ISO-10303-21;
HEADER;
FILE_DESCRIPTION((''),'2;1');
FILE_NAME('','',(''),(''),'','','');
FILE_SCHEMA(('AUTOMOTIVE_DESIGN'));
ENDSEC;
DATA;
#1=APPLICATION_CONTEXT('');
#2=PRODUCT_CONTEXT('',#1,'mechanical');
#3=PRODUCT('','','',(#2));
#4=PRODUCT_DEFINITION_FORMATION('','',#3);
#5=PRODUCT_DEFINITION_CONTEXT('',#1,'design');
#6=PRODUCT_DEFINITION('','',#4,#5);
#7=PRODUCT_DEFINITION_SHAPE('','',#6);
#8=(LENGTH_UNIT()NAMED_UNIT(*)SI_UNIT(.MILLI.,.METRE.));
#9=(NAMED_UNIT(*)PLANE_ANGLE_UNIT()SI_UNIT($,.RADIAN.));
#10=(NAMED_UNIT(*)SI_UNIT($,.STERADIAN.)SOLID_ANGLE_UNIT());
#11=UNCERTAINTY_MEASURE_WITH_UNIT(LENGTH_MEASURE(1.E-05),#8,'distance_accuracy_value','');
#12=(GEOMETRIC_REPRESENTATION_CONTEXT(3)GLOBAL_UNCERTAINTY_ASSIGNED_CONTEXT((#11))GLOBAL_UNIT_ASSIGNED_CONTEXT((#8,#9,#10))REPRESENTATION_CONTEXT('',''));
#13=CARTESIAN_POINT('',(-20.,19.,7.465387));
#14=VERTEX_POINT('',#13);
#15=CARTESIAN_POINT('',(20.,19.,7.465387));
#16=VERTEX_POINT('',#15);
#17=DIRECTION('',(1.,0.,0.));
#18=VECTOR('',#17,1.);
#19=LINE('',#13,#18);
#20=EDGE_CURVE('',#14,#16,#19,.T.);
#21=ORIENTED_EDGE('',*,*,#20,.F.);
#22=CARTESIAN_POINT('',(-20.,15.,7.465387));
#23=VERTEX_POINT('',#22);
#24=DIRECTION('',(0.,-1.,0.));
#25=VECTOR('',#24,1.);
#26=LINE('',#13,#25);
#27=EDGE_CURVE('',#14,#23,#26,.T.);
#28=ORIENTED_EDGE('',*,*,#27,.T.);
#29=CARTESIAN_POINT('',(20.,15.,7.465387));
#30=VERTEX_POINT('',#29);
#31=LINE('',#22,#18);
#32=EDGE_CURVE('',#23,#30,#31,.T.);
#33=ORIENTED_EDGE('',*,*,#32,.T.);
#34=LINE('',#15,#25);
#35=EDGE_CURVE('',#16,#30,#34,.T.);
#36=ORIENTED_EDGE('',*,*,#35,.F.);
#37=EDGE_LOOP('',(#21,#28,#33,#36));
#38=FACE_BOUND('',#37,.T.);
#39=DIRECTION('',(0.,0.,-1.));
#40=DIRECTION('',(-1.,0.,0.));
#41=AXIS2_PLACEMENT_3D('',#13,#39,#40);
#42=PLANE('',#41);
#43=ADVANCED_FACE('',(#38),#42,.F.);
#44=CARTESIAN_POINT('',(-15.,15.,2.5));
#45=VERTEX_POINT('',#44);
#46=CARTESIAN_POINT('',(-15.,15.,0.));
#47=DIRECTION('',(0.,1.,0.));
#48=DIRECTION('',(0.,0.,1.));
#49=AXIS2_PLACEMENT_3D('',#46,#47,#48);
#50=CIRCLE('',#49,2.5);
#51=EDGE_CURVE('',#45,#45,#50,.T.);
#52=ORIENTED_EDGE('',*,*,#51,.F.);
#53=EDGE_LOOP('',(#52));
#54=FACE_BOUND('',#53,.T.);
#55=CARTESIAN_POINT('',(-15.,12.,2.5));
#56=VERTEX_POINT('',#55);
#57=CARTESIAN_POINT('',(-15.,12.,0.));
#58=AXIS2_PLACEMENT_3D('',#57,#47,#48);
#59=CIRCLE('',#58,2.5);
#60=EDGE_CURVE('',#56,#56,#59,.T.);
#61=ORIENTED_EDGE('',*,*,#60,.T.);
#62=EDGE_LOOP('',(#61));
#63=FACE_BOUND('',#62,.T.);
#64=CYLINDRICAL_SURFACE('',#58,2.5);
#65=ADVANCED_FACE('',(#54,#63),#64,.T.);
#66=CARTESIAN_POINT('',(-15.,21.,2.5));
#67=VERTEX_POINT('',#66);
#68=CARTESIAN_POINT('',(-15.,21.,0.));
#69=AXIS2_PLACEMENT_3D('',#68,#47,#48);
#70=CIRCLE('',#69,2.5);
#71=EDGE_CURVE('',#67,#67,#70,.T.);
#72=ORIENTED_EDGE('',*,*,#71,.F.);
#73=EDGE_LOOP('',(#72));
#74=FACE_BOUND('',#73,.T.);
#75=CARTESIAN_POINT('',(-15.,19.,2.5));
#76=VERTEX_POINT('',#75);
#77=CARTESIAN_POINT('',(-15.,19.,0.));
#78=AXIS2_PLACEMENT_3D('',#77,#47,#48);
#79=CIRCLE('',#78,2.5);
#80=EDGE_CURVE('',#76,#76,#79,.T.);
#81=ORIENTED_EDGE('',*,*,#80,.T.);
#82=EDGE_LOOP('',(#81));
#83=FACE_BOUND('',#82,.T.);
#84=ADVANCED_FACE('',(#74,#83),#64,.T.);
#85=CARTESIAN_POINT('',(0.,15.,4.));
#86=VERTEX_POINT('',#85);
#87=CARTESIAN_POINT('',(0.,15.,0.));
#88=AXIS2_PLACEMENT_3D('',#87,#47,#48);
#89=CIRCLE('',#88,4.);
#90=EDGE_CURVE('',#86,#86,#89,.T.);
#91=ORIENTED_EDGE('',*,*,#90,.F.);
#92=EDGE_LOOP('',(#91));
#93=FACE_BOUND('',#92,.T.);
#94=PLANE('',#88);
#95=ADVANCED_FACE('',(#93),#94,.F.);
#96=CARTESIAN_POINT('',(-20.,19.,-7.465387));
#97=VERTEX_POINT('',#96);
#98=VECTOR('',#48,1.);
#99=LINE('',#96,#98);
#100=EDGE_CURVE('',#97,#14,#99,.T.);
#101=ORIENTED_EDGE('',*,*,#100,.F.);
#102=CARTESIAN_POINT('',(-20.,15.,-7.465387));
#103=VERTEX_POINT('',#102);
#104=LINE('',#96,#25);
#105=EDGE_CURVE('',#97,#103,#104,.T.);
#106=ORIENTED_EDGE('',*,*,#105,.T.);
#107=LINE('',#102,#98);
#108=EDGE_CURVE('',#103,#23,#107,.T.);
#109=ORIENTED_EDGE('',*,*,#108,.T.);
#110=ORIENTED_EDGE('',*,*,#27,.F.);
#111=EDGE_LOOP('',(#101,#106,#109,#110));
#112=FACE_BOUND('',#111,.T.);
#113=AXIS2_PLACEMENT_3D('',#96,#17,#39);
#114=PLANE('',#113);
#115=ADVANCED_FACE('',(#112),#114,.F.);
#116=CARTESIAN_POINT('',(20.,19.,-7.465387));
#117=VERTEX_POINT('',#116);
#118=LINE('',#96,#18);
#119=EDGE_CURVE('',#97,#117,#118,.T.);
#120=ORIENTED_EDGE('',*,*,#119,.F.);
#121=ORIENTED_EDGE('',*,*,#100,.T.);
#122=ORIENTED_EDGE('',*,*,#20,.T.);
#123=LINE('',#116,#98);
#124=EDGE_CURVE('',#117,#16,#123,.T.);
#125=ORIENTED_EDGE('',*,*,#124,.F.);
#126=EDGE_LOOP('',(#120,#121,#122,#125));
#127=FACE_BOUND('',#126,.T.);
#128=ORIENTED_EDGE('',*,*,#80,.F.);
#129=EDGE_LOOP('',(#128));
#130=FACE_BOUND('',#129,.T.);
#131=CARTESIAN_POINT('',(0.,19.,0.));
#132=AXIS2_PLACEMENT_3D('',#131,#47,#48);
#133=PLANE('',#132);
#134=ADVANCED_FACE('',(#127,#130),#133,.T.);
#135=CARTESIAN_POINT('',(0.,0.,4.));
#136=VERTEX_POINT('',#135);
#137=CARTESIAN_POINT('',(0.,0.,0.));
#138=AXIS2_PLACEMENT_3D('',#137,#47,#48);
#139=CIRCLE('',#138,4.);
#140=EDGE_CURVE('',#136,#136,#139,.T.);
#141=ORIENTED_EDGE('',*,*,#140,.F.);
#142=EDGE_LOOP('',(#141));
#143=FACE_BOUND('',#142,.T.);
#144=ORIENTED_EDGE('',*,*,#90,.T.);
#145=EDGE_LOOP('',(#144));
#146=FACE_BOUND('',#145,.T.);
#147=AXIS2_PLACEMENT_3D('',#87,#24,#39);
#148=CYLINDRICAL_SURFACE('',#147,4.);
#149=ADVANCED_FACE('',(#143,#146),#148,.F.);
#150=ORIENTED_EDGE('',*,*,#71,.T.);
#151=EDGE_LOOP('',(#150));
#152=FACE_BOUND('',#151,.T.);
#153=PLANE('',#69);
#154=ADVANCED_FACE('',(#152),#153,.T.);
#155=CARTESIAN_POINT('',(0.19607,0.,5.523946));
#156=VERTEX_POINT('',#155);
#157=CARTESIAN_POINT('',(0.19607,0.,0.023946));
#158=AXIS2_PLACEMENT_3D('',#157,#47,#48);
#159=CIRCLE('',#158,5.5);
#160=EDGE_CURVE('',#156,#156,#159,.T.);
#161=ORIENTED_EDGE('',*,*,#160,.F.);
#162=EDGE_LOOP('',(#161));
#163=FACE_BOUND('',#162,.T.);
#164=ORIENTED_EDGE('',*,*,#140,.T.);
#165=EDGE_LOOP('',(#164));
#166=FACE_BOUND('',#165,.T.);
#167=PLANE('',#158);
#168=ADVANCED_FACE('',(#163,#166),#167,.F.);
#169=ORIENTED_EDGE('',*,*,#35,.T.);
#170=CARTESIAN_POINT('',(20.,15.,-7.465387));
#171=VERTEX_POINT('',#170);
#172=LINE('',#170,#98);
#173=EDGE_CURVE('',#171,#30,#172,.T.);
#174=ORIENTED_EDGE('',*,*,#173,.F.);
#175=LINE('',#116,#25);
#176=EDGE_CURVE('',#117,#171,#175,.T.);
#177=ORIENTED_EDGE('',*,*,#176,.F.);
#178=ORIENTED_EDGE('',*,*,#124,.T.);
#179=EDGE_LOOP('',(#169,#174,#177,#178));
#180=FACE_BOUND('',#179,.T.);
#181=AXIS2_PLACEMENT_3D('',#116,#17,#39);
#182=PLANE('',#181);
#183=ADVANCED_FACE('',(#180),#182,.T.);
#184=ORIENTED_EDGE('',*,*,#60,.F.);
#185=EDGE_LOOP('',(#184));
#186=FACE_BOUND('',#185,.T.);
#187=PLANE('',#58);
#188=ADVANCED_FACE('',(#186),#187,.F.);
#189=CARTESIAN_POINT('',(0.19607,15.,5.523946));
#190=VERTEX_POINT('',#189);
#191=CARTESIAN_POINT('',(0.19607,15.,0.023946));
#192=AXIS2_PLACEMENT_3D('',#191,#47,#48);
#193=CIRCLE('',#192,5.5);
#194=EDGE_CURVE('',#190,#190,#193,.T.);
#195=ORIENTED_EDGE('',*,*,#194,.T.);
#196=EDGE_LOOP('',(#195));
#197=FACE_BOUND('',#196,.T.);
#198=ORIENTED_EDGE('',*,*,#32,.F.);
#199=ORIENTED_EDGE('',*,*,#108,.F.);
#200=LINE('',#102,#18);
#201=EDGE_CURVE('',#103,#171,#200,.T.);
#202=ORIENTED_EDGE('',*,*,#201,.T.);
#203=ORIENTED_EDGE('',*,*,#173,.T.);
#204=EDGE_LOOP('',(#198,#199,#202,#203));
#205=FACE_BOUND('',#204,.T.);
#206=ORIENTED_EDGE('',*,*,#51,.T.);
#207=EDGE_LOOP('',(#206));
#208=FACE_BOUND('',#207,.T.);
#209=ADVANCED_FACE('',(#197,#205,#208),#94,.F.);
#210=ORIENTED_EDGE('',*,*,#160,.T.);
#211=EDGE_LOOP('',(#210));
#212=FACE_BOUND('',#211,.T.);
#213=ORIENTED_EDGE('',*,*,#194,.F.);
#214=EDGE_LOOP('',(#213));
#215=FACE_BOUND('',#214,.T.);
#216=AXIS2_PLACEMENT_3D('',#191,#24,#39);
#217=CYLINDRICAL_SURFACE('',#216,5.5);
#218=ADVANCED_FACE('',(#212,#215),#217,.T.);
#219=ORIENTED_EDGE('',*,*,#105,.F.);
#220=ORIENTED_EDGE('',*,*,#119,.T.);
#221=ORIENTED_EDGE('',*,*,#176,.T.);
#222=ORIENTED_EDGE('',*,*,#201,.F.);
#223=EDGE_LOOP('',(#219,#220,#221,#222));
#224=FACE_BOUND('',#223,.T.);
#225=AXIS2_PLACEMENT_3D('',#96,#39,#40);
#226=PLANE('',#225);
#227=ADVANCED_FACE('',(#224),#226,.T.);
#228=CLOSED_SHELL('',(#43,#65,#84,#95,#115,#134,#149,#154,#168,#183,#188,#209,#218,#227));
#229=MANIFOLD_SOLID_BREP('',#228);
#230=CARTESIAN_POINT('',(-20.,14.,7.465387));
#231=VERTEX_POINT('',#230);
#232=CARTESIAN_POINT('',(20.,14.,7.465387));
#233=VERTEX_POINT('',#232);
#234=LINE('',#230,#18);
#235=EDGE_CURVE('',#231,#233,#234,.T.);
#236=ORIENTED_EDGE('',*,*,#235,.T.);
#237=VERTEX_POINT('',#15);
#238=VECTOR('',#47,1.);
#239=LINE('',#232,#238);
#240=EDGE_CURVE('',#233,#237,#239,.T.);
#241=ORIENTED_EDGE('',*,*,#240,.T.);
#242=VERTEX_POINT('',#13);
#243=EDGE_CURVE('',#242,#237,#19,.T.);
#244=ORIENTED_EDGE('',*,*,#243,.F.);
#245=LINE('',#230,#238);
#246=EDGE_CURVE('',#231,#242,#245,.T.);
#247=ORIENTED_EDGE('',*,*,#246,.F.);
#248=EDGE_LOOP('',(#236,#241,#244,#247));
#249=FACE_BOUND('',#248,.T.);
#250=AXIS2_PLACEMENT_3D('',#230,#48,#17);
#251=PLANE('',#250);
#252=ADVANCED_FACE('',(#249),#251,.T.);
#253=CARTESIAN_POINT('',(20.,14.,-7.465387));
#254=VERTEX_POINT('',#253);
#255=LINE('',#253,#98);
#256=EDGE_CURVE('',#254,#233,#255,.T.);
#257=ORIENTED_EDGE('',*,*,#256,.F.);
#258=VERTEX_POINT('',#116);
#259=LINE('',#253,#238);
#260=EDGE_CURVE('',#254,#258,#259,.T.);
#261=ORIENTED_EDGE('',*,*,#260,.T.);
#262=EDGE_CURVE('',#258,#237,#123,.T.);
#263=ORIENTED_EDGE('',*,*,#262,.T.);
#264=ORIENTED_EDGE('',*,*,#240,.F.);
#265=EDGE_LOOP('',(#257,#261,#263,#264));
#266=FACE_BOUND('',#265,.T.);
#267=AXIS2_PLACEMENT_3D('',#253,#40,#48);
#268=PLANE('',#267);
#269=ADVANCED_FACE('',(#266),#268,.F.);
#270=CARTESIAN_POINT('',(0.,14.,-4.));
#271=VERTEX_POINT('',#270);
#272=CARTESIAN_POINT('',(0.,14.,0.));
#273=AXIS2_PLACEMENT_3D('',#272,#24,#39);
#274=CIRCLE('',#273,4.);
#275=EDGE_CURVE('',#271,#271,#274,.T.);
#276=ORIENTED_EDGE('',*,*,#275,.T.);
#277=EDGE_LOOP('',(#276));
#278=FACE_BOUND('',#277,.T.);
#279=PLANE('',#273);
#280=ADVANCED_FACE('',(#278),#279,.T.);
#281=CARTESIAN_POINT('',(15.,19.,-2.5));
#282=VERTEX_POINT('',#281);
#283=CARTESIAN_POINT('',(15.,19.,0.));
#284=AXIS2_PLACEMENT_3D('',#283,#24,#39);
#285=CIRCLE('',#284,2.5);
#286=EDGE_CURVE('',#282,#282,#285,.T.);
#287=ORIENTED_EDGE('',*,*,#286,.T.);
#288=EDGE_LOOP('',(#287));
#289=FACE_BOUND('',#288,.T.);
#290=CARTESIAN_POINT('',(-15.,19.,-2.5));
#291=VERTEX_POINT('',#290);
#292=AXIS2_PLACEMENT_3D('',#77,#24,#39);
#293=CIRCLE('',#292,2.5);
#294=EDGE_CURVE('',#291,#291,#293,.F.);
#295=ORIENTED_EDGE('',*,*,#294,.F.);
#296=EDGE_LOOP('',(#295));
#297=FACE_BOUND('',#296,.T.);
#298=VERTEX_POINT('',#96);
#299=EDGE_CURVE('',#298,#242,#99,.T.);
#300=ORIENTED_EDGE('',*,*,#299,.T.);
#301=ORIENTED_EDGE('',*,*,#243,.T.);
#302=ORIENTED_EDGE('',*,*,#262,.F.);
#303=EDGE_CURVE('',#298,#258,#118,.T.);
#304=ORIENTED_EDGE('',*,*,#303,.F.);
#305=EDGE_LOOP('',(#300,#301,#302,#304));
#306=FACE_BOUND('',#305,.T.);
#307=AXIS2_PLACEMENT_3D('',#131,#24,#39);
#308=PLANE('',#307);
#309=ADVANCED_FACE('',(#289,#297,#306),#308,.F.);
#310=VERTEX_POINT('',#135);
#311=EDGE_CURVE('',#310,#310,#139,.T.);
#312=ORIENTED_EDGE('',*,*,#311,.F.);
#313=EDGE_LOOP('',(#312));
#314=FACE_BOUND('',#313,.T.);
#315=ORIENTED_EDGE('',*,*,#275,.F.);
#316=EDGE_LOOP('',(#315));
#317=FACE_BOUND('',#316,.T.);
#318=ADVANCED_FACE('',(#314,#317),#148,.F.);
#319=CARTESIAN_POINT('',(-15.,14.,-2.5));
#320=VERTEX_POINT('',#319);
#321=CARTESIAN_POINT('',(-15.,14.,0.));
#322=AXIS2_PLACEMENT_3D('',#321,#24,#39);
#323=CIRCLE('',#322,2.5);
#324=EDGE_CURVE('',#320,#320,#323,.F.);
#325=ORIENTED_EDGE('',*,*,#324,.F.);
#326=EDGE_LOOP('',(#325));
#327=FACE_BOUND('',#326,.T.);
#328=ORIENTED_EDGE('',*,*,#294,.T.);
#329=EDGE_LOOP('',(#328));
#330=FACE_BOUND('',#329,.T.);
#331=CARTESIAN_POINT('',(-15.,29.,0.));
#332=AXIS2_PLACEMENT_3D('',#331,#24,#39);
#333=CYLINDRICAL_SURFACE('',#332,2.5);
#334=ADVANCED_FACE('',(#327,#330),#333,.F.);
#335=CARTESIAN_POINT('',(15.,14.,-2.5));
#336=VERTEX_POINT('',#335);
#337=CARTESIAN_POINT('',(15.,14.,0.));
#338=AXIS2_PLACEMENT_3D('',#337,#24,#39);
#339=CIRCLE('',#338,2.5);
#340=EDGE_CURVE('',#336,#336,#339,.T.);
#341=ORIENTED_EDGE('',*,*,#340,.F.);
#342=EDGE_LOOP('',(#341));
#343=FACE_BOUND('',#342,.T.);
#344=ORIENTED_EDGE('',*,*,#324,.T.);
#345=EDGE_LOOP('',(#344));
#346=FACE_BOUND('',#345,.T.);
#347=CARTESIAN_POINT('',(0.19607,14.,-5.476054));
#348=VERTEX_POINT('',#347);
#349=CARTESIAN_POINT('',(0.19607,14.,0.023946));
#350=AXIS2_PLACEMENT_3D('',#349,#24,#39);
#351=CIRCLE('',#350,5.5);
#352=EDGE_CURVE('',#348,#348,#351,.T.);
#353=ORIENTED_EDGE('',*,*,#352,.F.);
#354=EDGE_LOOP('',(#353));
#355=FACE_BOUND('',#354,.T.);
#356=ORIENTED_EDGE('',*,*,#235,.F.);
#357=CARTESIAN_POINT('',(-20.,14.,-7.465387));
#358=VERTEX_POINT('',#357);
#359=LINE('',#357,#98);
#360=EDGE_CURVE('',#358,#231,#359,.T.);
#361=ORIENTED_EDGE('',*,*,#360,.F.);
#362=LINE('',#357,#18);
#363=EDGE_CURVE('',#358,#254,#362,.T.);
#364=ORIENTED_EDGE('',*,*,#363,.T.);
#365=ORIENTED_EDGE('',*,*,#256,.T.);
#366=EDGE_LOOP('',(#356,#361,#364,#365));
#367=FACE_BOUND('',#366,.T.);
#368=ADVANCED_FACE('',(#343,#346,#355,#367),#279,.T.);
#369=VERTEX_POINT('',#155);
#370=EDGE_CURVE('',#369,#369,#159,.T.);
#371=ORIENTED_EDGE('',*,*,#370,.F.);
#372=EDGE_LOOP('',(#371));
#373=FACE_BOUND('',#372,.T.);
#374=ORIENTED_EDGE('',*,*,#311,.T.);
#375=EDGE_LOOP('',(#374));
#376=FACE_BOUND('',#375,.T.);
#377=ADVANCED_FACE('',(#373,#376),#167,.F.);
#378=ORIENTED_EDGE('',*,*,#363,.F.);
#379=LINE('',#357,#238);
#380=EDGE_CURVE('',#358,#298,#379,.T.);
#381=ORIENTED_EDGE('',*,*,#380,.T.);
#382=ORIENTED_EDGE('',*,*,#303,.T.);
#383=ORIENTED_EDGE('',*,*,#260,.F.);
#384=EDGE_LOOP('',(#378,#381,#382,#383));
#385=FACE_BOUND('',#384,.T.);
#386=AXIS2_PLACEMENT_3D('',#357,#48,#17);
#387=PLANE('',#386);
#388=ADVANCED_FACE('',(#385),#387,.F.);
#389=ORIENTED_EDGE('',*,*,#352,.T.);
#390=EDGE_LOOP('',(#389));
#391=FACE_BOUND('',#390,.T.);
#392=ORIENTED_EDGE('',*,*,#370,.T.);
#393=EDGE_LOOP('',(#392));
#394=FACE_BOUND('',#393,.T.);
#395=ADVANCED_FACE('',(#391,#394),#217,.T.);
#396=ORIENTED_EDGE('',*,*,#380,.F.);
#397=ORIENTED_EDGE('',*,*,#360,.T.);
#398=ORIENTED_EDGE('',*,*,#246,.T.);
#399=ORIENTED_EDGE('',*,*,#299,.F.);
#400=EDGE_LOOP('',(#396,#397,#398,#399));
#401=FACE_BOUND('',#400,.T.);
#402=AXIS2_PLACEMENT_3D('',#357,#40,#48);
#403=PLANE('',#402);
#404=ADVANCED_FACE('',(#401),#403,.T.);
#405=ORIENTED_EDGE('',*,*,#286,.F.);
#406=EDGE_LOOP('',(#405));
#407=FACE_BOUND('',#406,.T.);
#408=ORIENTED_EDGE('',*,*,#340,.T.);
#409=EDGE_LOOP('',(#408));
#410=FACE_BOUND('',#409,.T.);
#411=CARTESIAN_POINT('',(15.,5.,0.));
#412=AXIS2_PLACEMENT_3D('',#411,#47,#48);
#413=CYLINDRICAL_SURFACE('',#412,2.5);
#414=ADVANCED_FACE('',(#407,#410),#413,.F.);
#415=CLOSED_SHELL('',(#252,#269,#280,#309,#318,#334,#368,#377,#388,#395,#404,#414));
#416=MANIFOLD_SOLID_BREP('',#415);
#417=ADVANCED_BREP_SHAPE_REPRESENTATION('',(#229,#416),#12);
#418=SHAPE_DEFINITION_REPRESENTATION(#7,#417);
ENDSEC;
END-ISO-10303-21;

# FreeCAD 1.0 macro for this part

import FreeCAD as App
import Part
import Sketcher
from FreeCAD import Vector

doc = App.newDocument("Part")
body = doc.addObject("PartDesign::Body", "Body")

# Sketch on XZ plane
sketch1 = body.newObject("Sketcher::SketchObject", "Sketch")
sketch1.AttachmentSupport = (doc.getObject("XZ_Plane"), [""])
sketch1.MapMode = "FlatFace"
sketch1.addGeometry([
    Part.Circle(Vector(0.2, 0, 0), Vector(0, 0, 1), 5.5),
    Part.Circle(Vector(0, 0, 0), Vector(0, 0, 1), 4),
], False)
sketch1.addConstraint([
    Sketcher.Constraint("Coincident", 1, 3, -1, 1),
    Sketcher.Constraint("Diameter", 0, 11.0),
    Sketcher.Constraint("Diameter", 1, 8.0),
    Sketcher.Constraint("DistanceX", -1, 1, 0, 3, 0.19607),
    Sketcher.Constraint("DistanceY", -1, 1, 0, 3, 0.023946),
])
pad1 = body.newObject("PartDesign::Pad", "Pad")
pad1.Profile = sketch1
pad1.Length = 15
pad1.Reversed = True

# Sketch on XZ plane
sketch2 = body.newObject("Sketcher::SketchObject", "Sketch001")
sketch2.AttachmentSupport = (doc.getObject("XZ_Plane"), [""])
sketch2.MapMode = "FlatFace"
sketch2.AttachmentOffset = App.Placement(Vector(0, 0, -15), App.Rotation())
sketch2.addGeometry([
    Part.LineSegment(Vector(-20, -7, 0), Vector(-20, 7, 0)),
    Part.LineSegment(Vector(-20, 7, 0), Vector(20, 7, 0)),
    Part.LineSegment(Vector(20, 7, 0), Vector(20, -7, 0)),
    Part.LineSegment(Vector(20, -7, 0), Vector(-20, -7, 0)),
], False)
sketch2.addConstraint([
    Sketcher.Constraint("Coincident", 0, 2, 1, 1),
    Sketcher.Constraint("Coincident", 1, 2, 2, 1),
    Sketcher.Constraint("Coincident", 2, 2, 3, 1),
    Sketcher.Constraint("Coincident", 3, 2, 0, 1),
    Sketcher.Constraint("Vertical", 0),
    Sketcher.Constraint("Horizontal", 1),
    Sketcher.Constraint("Vertical", 2),
    Sketcher.Constraint("Horizontal", 3),
    Sketcher.Constraint("Symmetric", 0, 2, 2, 2, -1, 1),
    Sketcher.Constraint("DistanceX", 1, 1, 1, 2, 40.0),
    Sketcher.Constraint("DistanceY", 0, 1, 0, 2, 14.930775),
])
pad2 = body.newObject("PartDesign::Pad", "Pad001")
pad2.Profile = sketch2
pad2.Type = "TwoLengths"
pad2.Length = 4
pad2.Length2 = 1
pad2.Reversed = True

# Sketch on XZ plane
sketch3 = body.newObject("Sketcher::SketchObject", "Sketch002")
sketch3.AttachmentSupport = (doc.getObject("XZ_Plane"), [""])
sketch3.MapMode = "FlatFace"
sketch3.AttachmentOffset = App.Placement(Vector(0, 0, -15), App.Rotation())
sketch3.addGeometry(Part.Circle(Vector(15, 0, 0), Vector(0, 0, 1), 2.5), False)
sketch3.addConstraint([
    Sketcher.Constraint("PointOnObject", 0, 3, -1),
    Sketcher.Constraint("Diameter", 0, 5.0),
    Sketcher.Constraint("DistanceX", -1, 1, 0, 3, 15.0),
])
pocket1 = body.newObject("PartDesign::Pocket", "Pocket")
pocket1.Profile = sketch3
pocket1.Type = "ThroughAll"
pocket1.Midplane = True

# Sketch on XZ plane
sketch4 = body.newObject("Sketcher::SketchObject", "Sketch003")
sketch4.AttachmentSupport = (doc.getObject("XZ_Plane"), [""])
sketch4.MapMode = "FlatFace"
sketch4.AttachmentOffset = App.Placement(Vector(0, 0, -15), App.Rotation())
sketch4.addGeometry(Part.Circle(Vector(-15, 0, 0), Vector(0, 0, 1), 2.5), False)
sketch4.addConstraint([
    Sketcher.Constraint("PointOnObject", 0, 3, -1),
    Sketcher.Constraint("Diameter", 0, 5.0),
    Sketcher.Constraint("DistanceX", 0, 3, -1, 1, 15.0),
])
pocket2 = body.newObject("PartDesign::Pocket", "Pocket001")
pocket2.Profile = sketch4
pocket2.Type = "ThroughAll"
pocket2.Midplane = True
body2 = doc.addObject("PartDesign::Body", "Body001")

# Sketch on XZ plane
sketch5 = body2.newObject("Sketcher::SketchObject", "Sketch004")
sketch5.AttachmentSupport = (doc.getObject("XZ_Plane001"), [""])
sketch5.MapMode = "FlatFace"
sketch5.addGeometry([
    Part.Circle(Vector(0.2, 0, 0), Vector(0, 0, 1), 5.5),
    Part.Circle(Vector(0, 0, 0), Vector(0, 0, 1), 4),
], False)
sketch5.addConstraint([
    Sketcher.Constraint("Coincident", 1, 3, -1, 1),
    Sketcher.Constraint("Diameter", 0, 11.0),
    Sketcher.Constraint("Diameter", 1, 8.0),
    Sketcher.Constraint("DistanceX", -1, 1, 0, 3, 0.19607),
    Sketcher.Constraint("DistanceY", -1, 1, 0, 3, 0.023946),
])
pad3 = body2.newObject("PartDesign::Pad", "Pad002")
pad3.Profile = sketch5
pad3.Length = 15
pad3.Reversed = True

# Sketch on XZ plane
sketch6 = body2.newObject("Sketcher::SketchObject", "Sketch005")
sketch6.AttachmentSupport = (doc.getObject("XZ_Plane001"), [""])
sketch6.MapMode = "FlatFace"
sketch6.AttachmentOffset = App.Placement(Vector(0, 0, -15), App.Rotation())
sketch6.addGeometry([
    Part.LineSegment(Vector(-20, -7, 0), Vector(-20, 7, 0)),
    Part.LineSegment(Vector(-20, 7, 0), Vector(20, 7, 0)),
    Part.LineSegment(Vector(20, 7, 0), Vector(20, -7, 0)),
    Part.LineSegment(Vector(20, -7, 0), Vector(-20, -7, 0)),
], False)
sketch6.addConstraint([
    Sketcher.Constraint("Coincident", 0, 2, 1, 1),
    Sketcher.Constraint("Coincident", 1, 2, 2, 1),
    Sketcher.Constraint("Coincident", 2, 2, 3, 1),
    Sketcher.Constraint("Coincident", 3, 2, 0, 1),
    Sketcher.Constraint("Vertical", 0),
    Sketcher.Constraint("Horizontal", 1),
    Sketcher.Constraint("Vertical", 2),
    Sketcher.Constraint("Horizontal", 3),
    Sketcher.Constraint("Symmetric", 0, 2, 2, 2, -1, 1),
    Sketcher.Constraint("DistanceX", 1, 1, 1, 2, 40.0),
    Sketcher.Constraint("DistanceY", 0, 1, 0, 2, 14.930775),
])
pad4 = body2.newObject("PartDesign::Pad", "Pad003")
pad4.Profile = sketch6
pad4.Length = 4
pad4.Reversed = True

# Sketch on XZ plane
sketch7 = body2.newObject("Sketcher::SketchObject", "Sketch006")
sketch7.AttachmentSupport = (doc.getObject("XZ_Plane001"), [""])
sketch7.MapMode = "FlatFace"
sketch7.AttachmentOffset = App.Placement(Vector(0, 0, -15), App.Rotation())
sketch7.addGeometry(Part.Circle(Vector(-15, 0, 0), Vector(0, 0, 1), 2.5), False)
sketch7.addConstraint([
    Sketcher.Constraint("PointOnObject", 0, 3, -1),
    Sketcher.Constraint("Diameter", 0, 5.0),
    Sketcher.Constraint("DistanceX", 0, 3, -1, 1, 15.0),
])
pad5 = body2.newObject("PartDesign::Pad", "Pad004")
pad5.Profile = sketch7
pad5.Type = "TwoLengths"
pad5.Length = 6
pad5.Length2 = 3
pad5.Reversed = True

doc.recompute()
